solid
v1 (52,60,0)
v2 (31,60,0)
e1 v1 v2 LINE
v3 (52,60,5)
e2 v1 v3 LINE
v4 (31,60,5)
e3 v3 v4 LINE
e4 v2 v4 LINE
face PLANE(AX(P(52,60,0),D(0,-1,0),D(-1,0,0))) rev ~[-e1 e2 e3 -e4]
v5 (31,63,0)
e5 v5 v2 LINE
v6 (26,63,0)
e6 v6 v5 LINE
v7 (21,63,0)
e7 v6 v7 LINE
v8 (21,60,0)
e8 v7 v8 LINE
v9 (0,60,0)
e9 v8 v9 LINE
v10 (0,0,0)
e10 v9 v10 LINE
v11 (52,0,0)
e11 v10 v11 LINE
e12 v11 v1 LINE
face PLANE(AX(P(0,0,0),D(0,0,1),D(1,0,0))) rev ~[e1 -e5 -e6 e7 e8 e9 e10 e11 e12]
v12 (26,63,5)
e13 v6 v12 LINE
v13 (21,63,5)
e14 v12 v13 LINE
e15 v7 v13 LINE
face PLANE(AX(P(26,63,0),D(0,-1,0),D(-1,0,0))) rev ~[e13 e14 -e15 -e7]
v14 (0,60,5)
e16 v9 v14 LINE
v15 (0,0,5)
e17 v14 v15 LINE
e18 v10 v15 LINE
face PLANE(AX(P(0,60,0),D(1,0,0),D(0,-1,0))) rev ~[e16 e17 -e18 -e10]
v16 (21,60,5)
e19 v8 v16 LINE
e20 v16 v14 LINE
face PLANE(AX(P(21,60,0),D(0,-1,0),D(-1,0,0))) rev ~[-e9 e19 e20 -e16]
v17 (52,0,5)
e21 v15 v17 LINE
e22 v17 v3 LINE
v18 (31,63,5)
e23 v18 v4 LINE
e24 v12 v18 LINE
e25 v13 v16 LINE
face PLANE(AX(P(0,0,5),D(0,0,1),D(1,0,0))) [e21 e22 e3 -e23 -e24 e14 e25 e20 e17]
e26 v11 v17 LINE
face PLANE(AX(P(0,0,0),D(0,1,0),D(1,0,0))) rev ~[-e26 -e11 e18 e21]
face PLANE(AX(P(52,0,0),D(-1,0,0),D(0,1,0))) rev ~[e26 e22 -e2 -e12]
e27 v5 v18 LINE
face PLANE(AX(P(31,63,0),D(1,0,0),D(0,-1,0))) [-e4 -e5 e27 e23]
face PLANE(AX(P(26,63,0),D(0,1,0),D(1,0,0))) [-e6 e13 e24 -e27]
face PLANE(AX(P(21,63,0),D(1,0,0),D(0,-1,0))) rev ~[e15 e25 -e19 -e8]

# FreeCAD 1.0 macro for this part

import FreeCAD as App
import Part
import Sketcher
from FreeCAD import Vector
Q = App.Units.Quantity


def add_polygon(sketch, points):
    """Adds a closed chain of lines whose ends are joined by coincident constraints."""
    first, n = sketch.GeometryCount, len(points)
    for a, b in zip(points, points[1:] + points[:1]):
        sketch.addGeometry(Part.LineSegment(App.Vector(*a, 0), App.Vector(*b, 0)), False)
    for i in range(n):
        sketch.addConstraint(Sketcher.Constraint("Coincident", first + i, 2, first + (i + 1) % n, 1))

doc = App.newDocument("Part")
body = doc.addObject("PartDesign::Body", "Body")

# Sketch on XY plane
sketch1 = body.newObject("Sketcher::SketchObject", "Sketch")
sketch1.AttachmentSupport = (doc.getObject("XY_Plane"), [""])
sketch1.MapMode = "FlatFace"
add_polygon(sketch1, [(0, 60), (0, 0), (52, 0), (52, 60), (31, 60), (31, 63), (21, 63), (21, 60)])  # lines 0-7
sketch1.addConstraint([
    Sketcher.Constraint("Vertical", 0),
    Sketcher.Constraint("Horizontal", 1),
    Sketcher.Constraint("Vertical", 2),
    Sketcher.Constraint("Horizontal", 3),
    Sketcher.Constraint("Vertical", 4),
    Sketcher.Constraint("Horizontal", 5),
    Sketcher.Constraint("Vertical", 6),
    Sketcher.Constraint("Horizontal", 7),
    Sketcher.Constraint("Coincident", 0, 2, -1, 1),
    Sketcher.Constraint("Horizontal", 3, 2, 6, 2),
    Sketcher.Constraint("Equal", 3, 7),
    Sketcher.Constraint("DistanceX", 1, 1, 1, 2, Q("52 mm")),
    Sketcher.Constraint("DistanceY", 0, 2, 0, 1, Q("60 mm")),
    Sketcher.Constraint("DistanceX", 3, 2, 3, 1, Q("21 mm")),
    Sketcher.Constraint("DistanceY", 4, 1, 4, 2, Q("3 mm")),
])
pad1 = body.newObject("PartDesign::Pad", "Pad")
pad1.Profile = sketch1
pad1.Length = 5

doc.recompute()
